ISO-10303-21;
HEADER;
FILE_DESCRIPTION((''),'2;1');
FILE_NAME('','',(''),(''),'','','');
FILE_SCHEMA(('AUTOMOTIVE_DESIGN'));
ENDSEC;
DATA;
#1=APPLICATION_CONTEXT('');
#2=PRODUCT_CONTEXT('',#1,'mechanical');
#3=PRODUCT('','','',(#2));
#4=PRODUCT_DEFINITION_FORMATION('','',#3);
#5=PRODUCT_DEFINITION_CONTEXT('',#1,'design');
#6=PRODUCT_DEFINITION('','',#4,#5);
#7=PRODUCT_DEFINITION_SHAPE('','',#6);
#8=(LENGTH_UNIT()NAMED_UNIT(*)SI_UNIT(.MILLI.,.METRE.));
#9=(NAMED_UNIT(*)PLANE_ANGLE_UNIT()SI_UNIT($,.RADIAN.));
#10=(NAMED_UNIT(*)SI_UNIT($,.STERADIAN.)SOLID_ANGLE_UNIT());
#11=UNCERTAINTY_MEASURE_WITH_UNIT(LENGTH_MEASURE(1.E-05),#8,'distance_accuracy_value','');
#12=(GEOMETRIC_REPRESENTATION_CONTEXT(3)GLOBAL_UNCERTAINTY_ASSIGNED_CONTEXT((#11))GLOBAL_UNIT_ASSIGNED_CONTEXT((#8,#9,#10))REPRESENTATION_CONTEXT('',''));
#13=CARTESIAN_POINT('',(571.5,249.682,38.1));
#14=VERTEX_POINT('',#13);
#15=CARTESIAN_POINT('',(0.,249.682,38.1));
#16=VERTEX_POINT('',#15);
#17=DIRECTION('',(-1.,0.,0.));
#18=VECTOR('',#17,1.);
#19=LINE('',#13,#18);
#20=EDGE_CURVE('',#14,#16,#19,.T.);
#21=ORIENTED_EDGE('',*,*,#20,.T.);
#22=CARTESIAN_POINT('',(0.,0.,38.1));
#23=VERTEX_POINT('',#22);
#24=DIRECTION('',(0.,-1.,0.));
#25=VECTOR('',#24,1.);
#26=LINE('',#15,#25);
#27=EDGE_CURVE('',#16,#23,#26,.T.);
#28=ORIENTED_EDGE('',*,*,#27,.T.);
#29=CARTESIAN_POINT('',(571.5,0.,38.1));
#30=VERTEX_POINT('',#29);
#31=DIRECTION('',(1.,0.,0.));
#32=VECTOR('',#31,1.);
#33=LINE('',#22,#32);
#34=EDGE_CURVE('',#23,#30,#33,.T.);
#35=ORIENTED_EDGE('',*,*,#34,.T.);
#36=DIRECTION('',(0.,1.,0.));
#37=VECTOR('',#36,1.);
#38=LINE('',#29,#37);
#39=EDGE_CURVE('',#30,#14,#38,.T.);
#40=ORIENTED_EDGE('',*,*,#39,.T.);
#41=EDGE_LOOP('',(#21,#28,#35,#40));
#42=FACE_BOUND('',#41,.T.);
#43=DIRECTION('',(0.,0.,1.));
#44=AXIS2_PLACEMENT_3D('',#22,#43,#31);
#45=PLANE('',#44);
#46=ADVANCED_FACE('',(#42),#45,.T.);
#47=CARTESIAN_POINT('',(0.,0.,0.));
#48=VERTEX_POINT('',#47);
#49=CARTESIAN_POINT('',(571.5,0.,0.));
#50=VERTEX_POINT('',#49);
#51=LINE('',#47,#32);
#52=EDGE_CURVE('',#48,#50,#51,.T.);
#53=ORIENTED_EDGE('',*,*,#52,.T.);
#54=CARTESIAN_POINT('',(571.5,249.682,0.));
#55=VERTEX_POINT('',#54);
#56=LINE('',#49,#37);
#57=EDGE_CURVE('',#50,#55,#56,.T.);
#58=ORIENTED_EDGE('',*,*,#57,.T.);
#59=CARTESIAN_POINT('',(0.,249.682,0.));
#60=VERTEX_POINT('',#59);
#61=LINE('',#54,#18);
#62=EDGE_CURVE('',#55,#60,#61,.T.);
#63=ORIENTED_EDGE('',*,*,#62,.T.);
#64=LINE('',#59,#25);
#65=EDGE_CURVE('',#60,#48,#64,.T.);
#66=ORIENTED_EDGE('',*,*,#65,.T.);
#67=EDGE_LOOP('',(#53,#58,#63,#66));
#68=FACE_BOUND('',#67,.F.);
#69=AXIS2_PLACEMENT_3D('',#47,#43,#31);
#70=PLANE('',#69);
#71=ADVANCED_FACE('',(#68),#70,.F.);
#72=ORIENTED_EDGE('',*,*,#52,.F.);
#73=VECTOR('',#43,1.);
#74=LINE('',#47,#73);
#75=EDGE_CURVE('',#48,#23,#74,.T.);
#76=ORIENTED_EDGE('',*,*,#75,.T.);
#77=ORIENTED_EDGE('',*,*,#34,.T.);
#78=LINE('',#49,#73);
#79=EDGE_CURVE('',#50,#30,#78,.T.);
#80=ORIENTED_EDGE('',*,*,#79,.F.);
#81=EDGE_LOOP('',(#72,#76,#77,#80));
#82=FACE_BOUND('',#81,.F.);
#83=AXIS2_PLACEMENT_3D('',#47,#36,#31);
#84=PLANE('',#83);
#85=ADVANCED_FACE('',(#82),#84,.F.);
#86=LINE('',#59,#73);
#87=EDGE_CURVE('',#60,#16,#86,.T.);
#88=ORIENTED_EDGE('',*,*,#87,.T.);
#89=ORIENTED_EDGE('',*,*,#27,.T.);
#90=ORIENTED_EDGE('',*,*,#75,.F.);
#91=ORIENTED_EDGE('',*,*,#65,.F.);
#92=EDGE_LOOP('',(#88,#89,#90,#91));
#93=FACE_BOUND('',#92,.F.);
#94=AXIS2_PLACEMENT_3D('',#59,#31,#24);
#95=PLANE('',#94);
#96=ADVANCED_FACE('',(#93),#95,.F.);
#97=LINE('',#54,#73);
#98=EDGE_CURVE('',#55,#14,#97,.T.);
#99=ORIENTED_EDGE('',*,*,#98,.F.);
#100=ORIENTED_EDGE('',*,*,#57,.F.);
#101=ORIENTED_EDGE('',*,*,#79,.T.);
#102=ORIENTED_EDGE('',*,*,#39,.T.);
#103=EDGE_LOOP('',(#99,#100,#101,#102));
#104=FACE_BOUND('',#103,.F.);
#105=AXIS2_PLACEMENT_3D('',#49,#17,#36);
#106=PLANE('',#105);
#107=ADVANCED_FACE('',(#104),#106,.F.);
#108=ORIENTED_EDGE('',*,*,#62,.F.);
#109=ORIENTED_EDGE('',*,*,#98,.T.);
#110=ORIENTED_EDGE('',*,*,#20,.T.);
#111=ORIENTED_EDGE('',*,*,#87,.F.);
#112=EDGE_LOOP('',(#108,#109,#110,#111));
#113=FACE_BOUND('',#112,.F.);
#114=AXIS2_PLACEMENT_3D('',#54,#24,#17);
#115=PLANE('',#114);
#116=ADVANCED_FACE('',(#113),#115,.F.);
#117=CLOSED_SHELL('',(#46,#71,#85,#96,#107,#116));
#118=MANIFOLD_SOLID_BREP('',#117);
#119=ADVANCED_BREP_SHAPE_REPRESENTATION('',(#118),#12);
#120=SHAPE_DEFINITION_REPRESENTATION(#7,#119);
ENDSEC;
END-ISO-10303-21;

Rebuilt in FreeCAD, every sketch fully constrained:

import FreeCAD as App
import Part
import Sketcher
Q = App.Units.Quantity


def add_polygon(sketch, points):
    """Adds a closed chain of lines whose ends are joined by coincident constraints."""
    first, n = sketch.GeometryCount, len(points)
    for a, b in zip(points, points[1:] + points[:1]):
        sketch.addGeometry(Part.LineSegment(App.Vector(*a, 0), App.Vector(*b, 0)), False)
    for i in range(n):
        sketch.addConstraint(Sketcher.Constraint("Coincident", first + i, 2, first + (i + 1) % n, 1))

doc = App.newDocument("Part")
body = doc.addObject("PartDesign::Body", "Body")

sketch1 = doc.addObject("Sketcher::SketchObject", "Sketch")
body.addObject(sketch1)
sketch1.AttachmentSupport = (doc.XY_Plane, [""])
sketch1.MapMode = "FlatFace"
add_polygon(sketch1, [(0, 250), (0, 0), (572, 0), (572, 250)])
sketch1.addConstraint(Sketcher.Constraint("Vertical", 0))
sketch1.addConstraint(Sketcher.Constraint("Horizontal", 1))
sketch1.addConstraint(Sketcher.Constraint("Vertical", 2))
sketch1.addConstraint(Sketcher.Constraint("Horizontal", 3))
sketch1.addConstraint(Sketcher.Constraint("Coincident", 0, 2, -1, 1))
sketch1.addConstraint(Sketcher.Constraint("DistanceX", 1, 1, 1, 2, Q("22.5 in")))
sketch1.addConstraint(Sketcher.Constraint("DistanceY", 0, 2, 0, 1, Q("9.83 in")))
pad1 = doc.addObject("PartDesign::Pad", "Pad")
body.addObject(pad1)
pad1.Profile = sketch1
pad1.Length = Q("1.5 in")

doc.recompute()
